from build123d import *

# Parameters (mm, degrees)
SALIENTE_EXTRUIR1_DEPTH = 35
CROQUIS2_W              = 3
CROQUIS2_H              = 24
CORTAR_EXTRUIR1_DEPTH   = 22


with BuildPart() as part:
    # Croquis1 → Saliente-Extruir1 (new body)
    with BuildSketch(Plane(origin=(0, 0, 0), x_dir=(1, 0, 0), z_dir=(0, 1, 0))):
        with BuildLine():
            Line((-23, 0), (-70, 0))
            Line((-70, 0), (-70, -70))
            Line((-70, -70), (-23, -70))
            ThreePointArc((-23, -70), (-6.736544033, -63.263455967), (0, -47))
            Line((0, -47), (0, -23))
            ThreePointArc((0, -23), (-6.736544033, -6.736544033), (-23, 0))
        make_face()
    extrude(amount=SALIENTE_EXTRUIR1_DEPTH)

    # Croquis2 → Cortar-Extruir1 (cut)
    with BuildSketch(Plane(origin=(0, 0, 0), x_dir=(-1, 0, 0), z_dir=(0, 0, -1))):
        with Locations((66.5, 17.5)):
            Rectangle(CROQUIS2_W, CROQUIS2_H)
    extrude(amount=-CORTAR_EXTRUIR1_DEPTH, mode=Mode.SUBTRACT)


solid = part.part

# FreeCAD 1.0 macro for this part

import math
import FreeCAD as App
import Part
import Sketcher

V = App.Vector
Q = App.Units.Quantity


def add_polygon(sketch, points):
    """Adds a closed chain of lines whose ends are joined by coincident constraints."""
    first, n = sketch.GeometryCount, len(points)
    for a, b in zip(points, points[1:] + points[:1]):
        sketch.addGeometry(Part.LineSegment(App.Vector(*a, 0), App.Vector(*b, 0)), False)
    for i in range(n):
        sketch.addConstraint(Sketcher.Constraint("Coincident", first + i, 2, first + (i + 1) % n, 1))

doc = App.newDocument("Part")
body = doc.addObject("PartDesign::Body", "Body")

# Sketch on XZ plane
sketch1 = body.newObject("Sketcher::SketchObject", "Sketch")
sketch1.AttachmentSupport = (doc.getObject("XZ_Plane"), [""])
sketch1.MapMode = "FlatFace"
sketch1.addGeometry(Part.LineSegment(V(-23, 0, 0), V(-70, 0, 0)), False)
sketch1.addGeometry(Part.LineSegment(V(-70, 0, 0), V(-70, 70, 0)), False)
sketch1.addGeometry(Part.LineSegment(V(-70, 70, 0), V(-23, 70, 0)), False)
sketch1.addGeometry(Part.ArcOfCircle(Part.Circle(V(-23, 47, 0), V(0, 0, 1), 23), math.radians(0), math.radians(90)), False)
sketch1.addGeometry(Part.LineSegment(V(0, 47, 0), V(0, 23, 0)), False)
sketch1.addGeometry(Part.ArcOfCircle(Part.Circle(V(-23, 23, 0), V(0, 0, 1), 23), math.radians(-90), math.radians(0)), False)
sketch1.addConstraint(Sketcher.Constraint("Coincident", 0, 2, 1, 1))
sketch1.addConstraint(Sketcher.Constraint("Coincident", 1, 2, 2, 1))
sketch1.addConstraint(Sketcher.Constraint("Tangent", 2, 2, 3, 2))
sketch1.addConstraint(Sketcher.Constraint("Tangent", 3, 1, 4, 1))
sketch1.addConstraint(Sketcher.Constraint("Tangent", 4, 2, 5, 2))
sketch1.addConstraint(Sketcher.Constraint("Tangent", 5, 1, 0, 1))
sketch1.addConstraint(Sketcher.Constraint("Horizontal", 0))
sketch1.addConstraint(Sketcher.Constraint("Vertical", 1))
sketch1.addConstraint(Sketcher.Constraint("Horizontal", 2))
sketch1.addConstraint(Sketcher.Constraint("Vertical", 4))
sketch1.addConstraint(Sketcher.Constraint("Equal", 3, 5))
sketch1.addConstraint(Sketcher.Constraint("PointOnObject", 0, 2, -1))
sketch1.addConstraint(Sketcher.Constraint("PointOnObject", 3, 1, -2))
sketch1.addConstraint(Sketcher.Constraint("Radius", 3, Q("23 mm")))
sketch1.addConstraint(Sketcher.Constraint("DistanceX", 0, 2, 0, 1, Q("47 mm")))
sketch1.addConstraint(Sketcher.Constraint("DistanceY", 1, 1, 1, 2, Q("70 mm")))
pad1 = body.newObject("PartDesign::Pad", "Pad")
pad1.Profile = sketch1
pad1.Length = 35
pad1.Reversed = True

# Sketch on XY plane
sketch2 = body.newObject("Sketcher::SketchObject", "Sketch001")
sketch2.AttachmentSupport = (doc.getObject("XY_Plane"), [""])
sketch2.MapMode = "FlatFace"
add_polygon(sketch2, [(-65, 29.5), (-65, 5.5), (-68, 5.5), (-68, 29.5)])  # lines 0-3
sketch2.addConstraint(Sketcher.Constraint("Vertical", 0))
sketch2.addConstraint(Sketcher.Constraint("Horizontal", 1))
sketch2.addConstraint(Sketcher.Constraint("Vertical", 2))
sketch2.addConstraint(Sketcher.Constraint("Horizontal", 3))
sketch2.addConstraint(Sketcher.Constraint("DistanceX", 1, 2, 1, 1, Q("3 mm")))
sketch2.addConstraint(Sketcher.Constraint("DistanceY", 0, 2, 0, 1, Q("24 mm")))
sketch2.addConstraint(Sketcher.Constraint("DistanceX", 0, 2, -1, 1, Q("65 mm")))
sketch2.addConstraint(Sketcher.Constraint("DistanceY", -1, 1, 0, 2, Q("5.5 mm")))
pocket1 = body.newObject("PartDesign::Pocket", "Pocket")
pocket1.Profile = sketch2
pocket1.Length = 22
pocket1.Reversed = True

doc.recompute()
